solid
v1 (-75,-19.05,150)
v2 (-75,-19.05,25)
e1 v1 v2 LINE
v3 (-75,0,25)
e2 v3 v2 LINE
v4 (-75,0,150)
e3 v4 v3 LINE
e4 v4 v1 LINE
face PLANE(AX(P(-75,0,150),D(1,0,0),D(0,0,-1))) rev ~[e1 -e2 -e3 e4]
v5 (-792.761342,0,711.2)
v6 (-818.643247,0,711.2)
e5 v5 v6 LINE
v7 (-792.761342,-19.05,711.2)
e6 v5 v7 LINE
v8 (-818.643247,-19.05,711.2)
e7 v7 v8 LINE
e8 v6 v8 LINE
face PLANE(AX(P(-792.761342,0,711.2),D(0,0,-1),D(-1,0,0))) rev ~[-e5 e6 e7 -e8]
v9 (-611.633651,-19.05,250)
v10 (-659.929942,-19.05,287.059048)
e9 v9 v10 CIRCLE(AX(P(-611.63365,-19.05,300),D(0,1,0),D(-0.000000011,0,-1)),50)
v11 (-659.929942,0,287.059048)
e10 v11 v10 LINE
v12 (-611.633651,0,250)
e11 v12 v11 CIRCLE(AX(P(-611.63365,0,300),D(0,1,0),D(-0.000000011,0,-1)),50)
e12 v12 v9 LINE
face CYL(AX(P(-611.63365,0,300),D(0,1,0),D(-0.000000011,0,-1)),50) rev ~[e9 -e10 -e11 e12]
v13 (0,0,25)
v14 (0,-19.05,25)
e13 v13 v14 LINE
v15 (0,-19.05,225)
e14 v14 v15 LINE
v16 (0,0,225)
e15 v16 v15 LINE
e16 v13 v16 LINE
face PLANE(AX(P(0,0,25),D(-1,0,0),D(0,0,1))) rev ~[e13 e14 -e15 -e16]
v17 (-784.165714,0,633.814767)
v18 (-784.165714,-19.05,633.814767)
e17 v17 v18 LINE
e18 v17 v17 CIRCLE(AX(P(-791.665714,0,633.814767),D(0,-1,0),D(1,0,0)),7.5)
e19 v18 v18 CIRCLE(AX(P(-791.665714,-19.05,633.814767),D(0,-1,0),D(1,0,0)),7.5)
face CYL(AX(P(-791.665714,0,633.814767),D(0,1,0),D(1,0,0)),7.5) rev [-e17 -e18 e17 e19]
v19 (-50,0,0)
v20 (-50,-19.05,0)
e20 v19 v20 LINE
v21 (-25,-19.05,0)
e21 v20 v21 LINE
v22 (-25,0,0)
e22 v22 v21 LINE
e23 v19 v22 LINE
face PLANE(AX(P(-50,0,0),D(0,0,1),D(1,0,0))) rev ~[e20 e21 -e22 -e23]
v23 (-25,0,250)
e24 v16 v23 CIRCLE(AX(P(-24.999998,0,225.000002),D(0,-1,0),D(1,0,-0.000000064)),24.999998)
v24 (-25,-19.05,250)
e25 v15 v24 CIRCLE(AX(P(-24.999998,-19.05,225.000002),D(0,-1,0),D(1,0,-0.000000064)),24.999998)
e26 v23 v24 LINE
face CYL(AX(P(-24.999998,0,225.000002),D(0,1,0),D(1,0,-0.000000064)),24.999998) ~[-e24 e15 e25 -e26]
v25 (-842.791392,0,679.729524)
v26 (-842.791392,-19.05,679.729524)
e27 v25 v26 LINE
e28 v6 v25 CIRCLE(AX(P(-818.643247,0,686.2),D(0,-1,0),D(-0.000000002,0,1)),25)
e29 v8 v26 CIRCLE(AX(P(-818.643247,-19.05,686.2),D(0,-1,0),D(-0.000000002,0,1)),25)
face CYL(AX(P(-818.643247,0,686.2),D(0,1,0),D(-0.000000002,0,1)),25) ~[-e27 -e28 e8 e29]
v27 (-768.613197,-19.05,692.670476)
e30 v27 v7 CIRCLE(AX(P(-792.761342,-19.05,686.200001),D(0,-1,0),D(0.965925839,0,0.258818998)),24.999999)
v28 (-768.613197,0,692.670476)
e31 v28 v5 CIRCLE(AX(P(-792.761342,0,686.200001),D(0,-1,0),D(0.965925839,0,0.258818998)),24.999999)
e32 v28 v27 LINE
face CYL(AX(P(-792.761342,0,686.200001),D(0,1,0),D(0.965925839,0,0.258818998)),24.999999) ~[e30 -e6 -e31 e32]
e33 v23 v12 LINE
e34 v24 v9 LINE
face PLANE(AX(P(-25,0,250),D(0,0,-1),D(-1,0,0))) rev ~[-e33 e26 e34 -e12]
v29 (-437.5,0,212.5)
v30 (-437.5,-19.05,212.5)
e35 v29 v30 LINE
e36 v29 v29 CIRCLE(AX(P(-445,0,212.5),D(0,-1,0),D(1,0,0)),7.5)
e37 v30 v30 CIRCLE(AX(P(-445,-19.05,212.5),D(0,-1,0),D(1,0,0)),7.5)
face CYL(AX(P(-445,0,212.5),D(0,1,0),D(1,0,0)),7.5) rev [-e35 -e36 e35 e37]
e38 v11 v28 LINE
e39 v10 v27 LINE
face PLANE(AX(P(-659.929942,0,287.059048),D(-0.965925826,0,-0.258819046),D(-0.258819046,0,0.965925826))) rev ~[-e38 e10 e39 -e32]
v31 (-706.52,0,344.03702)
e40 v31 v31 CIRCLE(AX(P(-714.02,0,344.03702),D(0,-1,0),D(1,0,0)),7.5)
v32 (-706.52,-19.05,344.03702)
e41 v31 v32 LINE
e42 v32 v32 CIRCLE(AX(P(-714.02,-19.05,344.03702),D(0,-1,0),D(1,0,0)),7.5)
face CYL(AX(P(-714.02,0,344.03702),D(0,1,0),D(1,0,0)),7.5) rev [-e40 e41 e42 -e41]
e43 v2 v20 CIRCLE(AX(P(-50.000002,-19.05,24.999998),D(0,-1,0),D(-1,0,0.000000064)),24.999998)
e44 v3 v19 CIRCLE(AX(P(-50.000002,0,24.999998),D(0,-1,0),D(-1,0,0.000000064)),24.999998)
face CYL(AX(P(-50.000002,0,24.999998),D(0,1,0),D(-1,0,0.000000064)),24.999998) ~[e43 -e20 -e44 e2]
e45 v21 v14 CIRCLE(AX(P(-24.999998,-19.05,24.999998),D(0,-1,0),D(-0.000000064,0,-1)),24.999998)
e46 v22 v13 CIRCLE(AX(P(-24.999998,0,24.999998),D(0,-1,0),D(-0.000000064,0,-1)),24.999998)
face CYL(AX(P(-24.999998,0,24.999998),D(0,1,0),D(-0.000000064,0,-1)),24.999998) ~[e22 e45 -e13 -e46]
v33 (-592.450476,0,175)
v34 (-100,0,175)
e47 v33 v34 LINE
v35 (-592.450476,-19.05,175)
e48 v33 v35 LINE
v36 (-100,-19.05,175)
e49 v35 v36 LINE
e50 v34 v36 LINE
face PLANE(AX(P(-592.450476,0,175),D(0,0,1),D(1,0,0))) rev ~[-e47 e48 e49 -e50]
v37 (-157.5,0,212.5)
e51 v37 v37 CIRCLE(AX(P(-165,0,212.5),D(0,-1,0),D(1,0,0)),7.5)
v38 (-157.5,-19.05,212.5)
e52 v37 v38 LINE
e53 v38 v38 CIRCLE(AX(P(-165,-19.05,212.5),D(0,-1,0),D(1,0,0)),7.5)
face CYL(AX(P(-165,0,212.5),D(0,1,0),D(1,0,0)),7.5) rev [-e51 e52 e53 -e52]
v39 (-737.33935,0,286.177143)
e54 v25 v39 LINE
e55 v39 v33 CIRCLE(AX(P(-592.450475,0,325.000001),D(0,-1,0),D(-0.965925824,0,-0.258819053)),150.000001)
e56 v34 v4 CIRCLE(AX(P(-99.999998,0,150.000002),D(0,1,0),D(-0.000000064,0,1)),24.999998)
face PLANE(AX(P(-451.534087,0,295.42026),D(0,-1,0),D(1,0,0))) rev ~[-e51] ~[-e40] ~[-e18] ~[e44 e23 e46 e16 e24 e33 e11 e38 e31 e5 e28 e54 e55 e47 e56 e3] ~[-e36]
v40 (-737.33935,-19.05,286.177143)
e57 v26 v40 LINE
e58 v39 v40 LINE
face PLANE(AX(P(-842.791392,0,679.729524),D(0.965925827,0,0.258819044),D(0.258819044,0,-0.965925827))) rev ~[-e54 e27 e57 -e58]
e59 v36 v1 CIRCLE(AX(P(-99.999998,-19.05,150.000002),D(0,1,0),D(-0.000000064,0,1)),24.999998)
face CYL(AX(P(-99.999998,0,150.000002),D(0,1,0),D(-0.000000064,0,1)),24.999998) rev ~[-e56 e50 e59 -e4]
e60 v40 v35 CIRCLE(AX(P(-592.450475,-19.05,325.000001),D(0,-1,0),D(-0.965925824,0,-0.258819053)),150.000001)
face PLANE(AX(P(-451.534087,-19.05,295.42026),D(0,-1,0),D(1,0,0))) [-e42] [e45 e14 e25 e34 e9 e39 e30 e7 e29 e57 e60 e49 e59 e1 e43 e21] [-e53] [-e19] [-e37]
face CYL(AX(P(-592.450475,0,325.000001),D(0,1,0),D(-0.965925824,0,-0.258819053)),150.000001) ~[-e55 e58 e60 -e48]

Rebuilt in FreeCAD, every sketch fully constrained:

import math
import FreeCAD as App
import Part
import Sketcher
from FreeCAD import Vector
Q = App.Units.Quantity

doc = App.newDocument("Part")
body = doc.addObject("PartDesign::Body", "Body")

# Sketch on XZ plane
sketch1 = body.newObject("Sketcher::SketchObject", "Sketch")
sketch1.AttachmentSupport = (doc.getObject("XZ_Plane"), [""])
sketch1.MapMode = "FlatFace"
sketch1.addGeometry([
    Part.ArcOfCircle(Part.Circle(Vector(-24.999998, 24.999998, 0), Vector(0, 0, 1), 24.999998), math.radians(-90.000004), math.radians(0.000004)),  # 0
    Part.LineSegment(Vector(0, 25, 0), Vector(0, 225, 0)),  # 1
    Part.ArcOfCircle(Part.Circle(Vector(-24.999998, 225.000002, 0), Vector(0, 0, 1), 24.999998), math.radians(-0.000004), math.radians(90.000004)),  # 2
    Part.LineSegment(Vector(-25, 250, 0), Vector(-611.633651, 250, 0)),  # 3
    Part.ArcOfCircle(Part.Circle(Vector(-611.63365, 300, 0), Vector(0, 0, 1), 50), math.radians(-165), math.radians(-90.000001)),  # 4
    Part.LineSegment(Vector(-659.929942, 287.059048, 0), Vector(-768.613197, 692.670476, 0)),  # 5
    Part.ArcOfCircle(Part.Circle(Vector(-792.761342, 686.200001, 0), Vector(0, 0, 1), 24.999999), math.radians(14.999997), math.radians(90.000001)),  # 6
    Part.LineSegment(Vector(-792.761342, 711.2, 0), Vector(-818.643247, 711.2, 0)),  # 7
    Part.ArcOfCircle(Part.Circle(Vector(-818.643247, 686.2, 0), Vector(0, 0, 1), 25), math.radians(90), math.radians(195.000001)),  # 8
    Part.LineSegment(Vector(-842.791392, 679.729524, 0), Vector(-737.33935, 286.177143, 0)),  # 9
    Part.ArcOfCircle(Part.Circle(Vector(-592.450475, 325.000001, 0), Vector(0, 0, 1), 150.000001), math.radians(-165), math.radians(-90)),  # 10
    Part.LineSegment(Vector(-592.450476, 175, 0), Vector(-100, 175, 0)),  # 11
    Part.ArcOfCircle(Part.Circle(Vector(-99.999998, 150.000002, 0), Vector(0, 0, 1), 24.999998), math.radians(-0.000004), math.radians(90.000004)),  # 12
    Part.LineSegment(Vector(-75, 150, 0), Vector(-75, 25, 0)),  # 13
    Part.ArcOfCircle(Part.Circle(Vector(-50.000002, 24.999998, 0), Vector(0, 0, 1), 24.999998), math.radians(179.999996), math.radians(270.000004)),  # 14
    Part.LineSegment(Vector(-50, 0, 0), Vector(-25, 0, 0)),  # 15
    Part.Circle(Vector(-714.02, 344.03702, 0), Vector(0, 0, 1), 7.5),  # 16
    Part.Circle(Vector(-445, 212.5, 0), Vector(0, 0, 1), 7.5),  # 17
    Part.Circle(Vector(-165, 212.5, 0), Vector(0, 0, 1), 7.5),  # 18
    Part.Circle(Vector(-791.665714, 633.814767, 0), Vector(0, 0, 1), 7.5),  # 19
], False)
sketch1.addConstraint([
    Sketcher.Constraint("Tangent", 0, 2, 1, 1),
    Sketcher.Constraint("Tangent", 1, 2, 2, 1),
    Sketcher.Constraint("Tangent", 2, 2, 3, 1),
    Sketcher.Constraint("Tangent", 3, 2, 4, 2),
    Sketcher.Constraint("Tangent", 4, 1, 5, 1),
    Sketcher.Constraint("Tangent", 5, 2, 6, 1),
    Sketcher.Constraint("Tangent", 6, 2, 7, 1),
    Sketcher.Constraint("Tangent", 7, 2, 8, 1),
    Sketcher.Constraint("Tangent", 8, 2, 9, 1),
    Sketcher.Constraint("Tangent", 9, 2, 10, 1),
    Sketcher.Constraint("Tangent", 10, 2, 11, 1),
    Sketcher.Constraint("Tangent", 11, 2, 12, 2),
    Sketcher.Constraint("Tangent", 12, 1, 13, 1),
    Sketcher.Constraint("Tangent", 13, 2, 14, 1),
    Sketcher.Constraint("Tangent", 14, 2, 15, 1),
    Sketcher.Constraint("Tangent", 15, 2, 0, 1),
    Sketcher.Constraint("Vertical", 1),
    Sketcher.Constraint("Horizontal", 3),
    Sketcher.Constraint("Horizontal", 7),
    Sketcher.Constraint("Horizontal", 11),
    Sketcher.Constraint("Vertical", 13),
    Sketcher.Constraint("Horizontal", 15),
    Sketcher.Constraint("Equal", 0, 2),
    Sketcher.Constraint("Equal", 2, 6),
    Sketcher.Constraint("Equal", 6, 8),
    Sketcher.Constraint("Equal", 8, 12),
    Sketcher.Constraint("Equal", 12, 14),
    Sketcher.Constraint("Equal", 16, 17),
    Sketcher.Constraint("Equal", 17, 18),
    Sketcher.Constraint("Equal", 18, 19),
    Sketcher.Constraint("PointOnObject", 0, 2, -2),
    Sketcher.Constraint("PointOnObject", 14, 2, -1),
    Sketcher.Constraint("Parallel", 5, 9),
    Sketcher.Constraint("Horizontal", 17, 3, 18, 3),
    Sketcher.Constraint("Diameter", 16, Q("15 mm")),
    Sketcher.Constraint("Radius", 0, Q("24.999998 mm")),
    Sketcher.Constraint("Radius", 4, Q("50 mm")),
    Sketcher.Constraint("Radius", 10, Q("150.000001 mm")),
    Sketcher.Constraint("DistanceX", 15, 1, 15, 2, Q("25 mm")),
    Sketcher.Constraint("DistanceY", 1, 1, 1, 2, Q("200 mm")),
    Sketcher.Constraint("DistanceY", 13, 2, 13, 1, Q("125 mm")),
    Sketcher.Constraint("Angle", 5, Q("105 deg")),
    Sketcher.Constraint("DistanceX", 17, 3, -1, 1, Q("445 mm")),
    Sketcher.Constraint("DistanceX", 18, 3, -1, 1, Q("165 mm")),
    Sketcher.Constraint("DistanceY", -1, 1, 6, 3, Q("686.200001 mm")),
    Sketcher.Constraint("DistanceY", -1, 1, 17, 3, Q("212.5 mm")),
    Sketcher.Constraint("DistanceX", 16, 3, -1, 1, Q("714.02 mm")),
    Sketcher.Constraint("DistanceX", 3, 2, 3, 1, Q("586.633651 mm")),
    Sketcher.Constraint("DistanceX", 9, 2, 4, 3, Q("125.7057 mm")),
    Sketcher.Constraint("DistanceY", -1, 1, 16, 3, Q("344.03702 mm")),
    Sketcher.Constraint("DistanceX", 19, 3, 10, 3, Q("199.215239 mm")),
    Sketcher.Constraint("DistanceY", 19, 3, 5, 2, Q("58.855709 mm")),
])
pad1 = body.newObject("PartDesign::Pad", "Pad")
pad1.Profile = sketch1
pad1.Length = 19.05

doc.recompute()
